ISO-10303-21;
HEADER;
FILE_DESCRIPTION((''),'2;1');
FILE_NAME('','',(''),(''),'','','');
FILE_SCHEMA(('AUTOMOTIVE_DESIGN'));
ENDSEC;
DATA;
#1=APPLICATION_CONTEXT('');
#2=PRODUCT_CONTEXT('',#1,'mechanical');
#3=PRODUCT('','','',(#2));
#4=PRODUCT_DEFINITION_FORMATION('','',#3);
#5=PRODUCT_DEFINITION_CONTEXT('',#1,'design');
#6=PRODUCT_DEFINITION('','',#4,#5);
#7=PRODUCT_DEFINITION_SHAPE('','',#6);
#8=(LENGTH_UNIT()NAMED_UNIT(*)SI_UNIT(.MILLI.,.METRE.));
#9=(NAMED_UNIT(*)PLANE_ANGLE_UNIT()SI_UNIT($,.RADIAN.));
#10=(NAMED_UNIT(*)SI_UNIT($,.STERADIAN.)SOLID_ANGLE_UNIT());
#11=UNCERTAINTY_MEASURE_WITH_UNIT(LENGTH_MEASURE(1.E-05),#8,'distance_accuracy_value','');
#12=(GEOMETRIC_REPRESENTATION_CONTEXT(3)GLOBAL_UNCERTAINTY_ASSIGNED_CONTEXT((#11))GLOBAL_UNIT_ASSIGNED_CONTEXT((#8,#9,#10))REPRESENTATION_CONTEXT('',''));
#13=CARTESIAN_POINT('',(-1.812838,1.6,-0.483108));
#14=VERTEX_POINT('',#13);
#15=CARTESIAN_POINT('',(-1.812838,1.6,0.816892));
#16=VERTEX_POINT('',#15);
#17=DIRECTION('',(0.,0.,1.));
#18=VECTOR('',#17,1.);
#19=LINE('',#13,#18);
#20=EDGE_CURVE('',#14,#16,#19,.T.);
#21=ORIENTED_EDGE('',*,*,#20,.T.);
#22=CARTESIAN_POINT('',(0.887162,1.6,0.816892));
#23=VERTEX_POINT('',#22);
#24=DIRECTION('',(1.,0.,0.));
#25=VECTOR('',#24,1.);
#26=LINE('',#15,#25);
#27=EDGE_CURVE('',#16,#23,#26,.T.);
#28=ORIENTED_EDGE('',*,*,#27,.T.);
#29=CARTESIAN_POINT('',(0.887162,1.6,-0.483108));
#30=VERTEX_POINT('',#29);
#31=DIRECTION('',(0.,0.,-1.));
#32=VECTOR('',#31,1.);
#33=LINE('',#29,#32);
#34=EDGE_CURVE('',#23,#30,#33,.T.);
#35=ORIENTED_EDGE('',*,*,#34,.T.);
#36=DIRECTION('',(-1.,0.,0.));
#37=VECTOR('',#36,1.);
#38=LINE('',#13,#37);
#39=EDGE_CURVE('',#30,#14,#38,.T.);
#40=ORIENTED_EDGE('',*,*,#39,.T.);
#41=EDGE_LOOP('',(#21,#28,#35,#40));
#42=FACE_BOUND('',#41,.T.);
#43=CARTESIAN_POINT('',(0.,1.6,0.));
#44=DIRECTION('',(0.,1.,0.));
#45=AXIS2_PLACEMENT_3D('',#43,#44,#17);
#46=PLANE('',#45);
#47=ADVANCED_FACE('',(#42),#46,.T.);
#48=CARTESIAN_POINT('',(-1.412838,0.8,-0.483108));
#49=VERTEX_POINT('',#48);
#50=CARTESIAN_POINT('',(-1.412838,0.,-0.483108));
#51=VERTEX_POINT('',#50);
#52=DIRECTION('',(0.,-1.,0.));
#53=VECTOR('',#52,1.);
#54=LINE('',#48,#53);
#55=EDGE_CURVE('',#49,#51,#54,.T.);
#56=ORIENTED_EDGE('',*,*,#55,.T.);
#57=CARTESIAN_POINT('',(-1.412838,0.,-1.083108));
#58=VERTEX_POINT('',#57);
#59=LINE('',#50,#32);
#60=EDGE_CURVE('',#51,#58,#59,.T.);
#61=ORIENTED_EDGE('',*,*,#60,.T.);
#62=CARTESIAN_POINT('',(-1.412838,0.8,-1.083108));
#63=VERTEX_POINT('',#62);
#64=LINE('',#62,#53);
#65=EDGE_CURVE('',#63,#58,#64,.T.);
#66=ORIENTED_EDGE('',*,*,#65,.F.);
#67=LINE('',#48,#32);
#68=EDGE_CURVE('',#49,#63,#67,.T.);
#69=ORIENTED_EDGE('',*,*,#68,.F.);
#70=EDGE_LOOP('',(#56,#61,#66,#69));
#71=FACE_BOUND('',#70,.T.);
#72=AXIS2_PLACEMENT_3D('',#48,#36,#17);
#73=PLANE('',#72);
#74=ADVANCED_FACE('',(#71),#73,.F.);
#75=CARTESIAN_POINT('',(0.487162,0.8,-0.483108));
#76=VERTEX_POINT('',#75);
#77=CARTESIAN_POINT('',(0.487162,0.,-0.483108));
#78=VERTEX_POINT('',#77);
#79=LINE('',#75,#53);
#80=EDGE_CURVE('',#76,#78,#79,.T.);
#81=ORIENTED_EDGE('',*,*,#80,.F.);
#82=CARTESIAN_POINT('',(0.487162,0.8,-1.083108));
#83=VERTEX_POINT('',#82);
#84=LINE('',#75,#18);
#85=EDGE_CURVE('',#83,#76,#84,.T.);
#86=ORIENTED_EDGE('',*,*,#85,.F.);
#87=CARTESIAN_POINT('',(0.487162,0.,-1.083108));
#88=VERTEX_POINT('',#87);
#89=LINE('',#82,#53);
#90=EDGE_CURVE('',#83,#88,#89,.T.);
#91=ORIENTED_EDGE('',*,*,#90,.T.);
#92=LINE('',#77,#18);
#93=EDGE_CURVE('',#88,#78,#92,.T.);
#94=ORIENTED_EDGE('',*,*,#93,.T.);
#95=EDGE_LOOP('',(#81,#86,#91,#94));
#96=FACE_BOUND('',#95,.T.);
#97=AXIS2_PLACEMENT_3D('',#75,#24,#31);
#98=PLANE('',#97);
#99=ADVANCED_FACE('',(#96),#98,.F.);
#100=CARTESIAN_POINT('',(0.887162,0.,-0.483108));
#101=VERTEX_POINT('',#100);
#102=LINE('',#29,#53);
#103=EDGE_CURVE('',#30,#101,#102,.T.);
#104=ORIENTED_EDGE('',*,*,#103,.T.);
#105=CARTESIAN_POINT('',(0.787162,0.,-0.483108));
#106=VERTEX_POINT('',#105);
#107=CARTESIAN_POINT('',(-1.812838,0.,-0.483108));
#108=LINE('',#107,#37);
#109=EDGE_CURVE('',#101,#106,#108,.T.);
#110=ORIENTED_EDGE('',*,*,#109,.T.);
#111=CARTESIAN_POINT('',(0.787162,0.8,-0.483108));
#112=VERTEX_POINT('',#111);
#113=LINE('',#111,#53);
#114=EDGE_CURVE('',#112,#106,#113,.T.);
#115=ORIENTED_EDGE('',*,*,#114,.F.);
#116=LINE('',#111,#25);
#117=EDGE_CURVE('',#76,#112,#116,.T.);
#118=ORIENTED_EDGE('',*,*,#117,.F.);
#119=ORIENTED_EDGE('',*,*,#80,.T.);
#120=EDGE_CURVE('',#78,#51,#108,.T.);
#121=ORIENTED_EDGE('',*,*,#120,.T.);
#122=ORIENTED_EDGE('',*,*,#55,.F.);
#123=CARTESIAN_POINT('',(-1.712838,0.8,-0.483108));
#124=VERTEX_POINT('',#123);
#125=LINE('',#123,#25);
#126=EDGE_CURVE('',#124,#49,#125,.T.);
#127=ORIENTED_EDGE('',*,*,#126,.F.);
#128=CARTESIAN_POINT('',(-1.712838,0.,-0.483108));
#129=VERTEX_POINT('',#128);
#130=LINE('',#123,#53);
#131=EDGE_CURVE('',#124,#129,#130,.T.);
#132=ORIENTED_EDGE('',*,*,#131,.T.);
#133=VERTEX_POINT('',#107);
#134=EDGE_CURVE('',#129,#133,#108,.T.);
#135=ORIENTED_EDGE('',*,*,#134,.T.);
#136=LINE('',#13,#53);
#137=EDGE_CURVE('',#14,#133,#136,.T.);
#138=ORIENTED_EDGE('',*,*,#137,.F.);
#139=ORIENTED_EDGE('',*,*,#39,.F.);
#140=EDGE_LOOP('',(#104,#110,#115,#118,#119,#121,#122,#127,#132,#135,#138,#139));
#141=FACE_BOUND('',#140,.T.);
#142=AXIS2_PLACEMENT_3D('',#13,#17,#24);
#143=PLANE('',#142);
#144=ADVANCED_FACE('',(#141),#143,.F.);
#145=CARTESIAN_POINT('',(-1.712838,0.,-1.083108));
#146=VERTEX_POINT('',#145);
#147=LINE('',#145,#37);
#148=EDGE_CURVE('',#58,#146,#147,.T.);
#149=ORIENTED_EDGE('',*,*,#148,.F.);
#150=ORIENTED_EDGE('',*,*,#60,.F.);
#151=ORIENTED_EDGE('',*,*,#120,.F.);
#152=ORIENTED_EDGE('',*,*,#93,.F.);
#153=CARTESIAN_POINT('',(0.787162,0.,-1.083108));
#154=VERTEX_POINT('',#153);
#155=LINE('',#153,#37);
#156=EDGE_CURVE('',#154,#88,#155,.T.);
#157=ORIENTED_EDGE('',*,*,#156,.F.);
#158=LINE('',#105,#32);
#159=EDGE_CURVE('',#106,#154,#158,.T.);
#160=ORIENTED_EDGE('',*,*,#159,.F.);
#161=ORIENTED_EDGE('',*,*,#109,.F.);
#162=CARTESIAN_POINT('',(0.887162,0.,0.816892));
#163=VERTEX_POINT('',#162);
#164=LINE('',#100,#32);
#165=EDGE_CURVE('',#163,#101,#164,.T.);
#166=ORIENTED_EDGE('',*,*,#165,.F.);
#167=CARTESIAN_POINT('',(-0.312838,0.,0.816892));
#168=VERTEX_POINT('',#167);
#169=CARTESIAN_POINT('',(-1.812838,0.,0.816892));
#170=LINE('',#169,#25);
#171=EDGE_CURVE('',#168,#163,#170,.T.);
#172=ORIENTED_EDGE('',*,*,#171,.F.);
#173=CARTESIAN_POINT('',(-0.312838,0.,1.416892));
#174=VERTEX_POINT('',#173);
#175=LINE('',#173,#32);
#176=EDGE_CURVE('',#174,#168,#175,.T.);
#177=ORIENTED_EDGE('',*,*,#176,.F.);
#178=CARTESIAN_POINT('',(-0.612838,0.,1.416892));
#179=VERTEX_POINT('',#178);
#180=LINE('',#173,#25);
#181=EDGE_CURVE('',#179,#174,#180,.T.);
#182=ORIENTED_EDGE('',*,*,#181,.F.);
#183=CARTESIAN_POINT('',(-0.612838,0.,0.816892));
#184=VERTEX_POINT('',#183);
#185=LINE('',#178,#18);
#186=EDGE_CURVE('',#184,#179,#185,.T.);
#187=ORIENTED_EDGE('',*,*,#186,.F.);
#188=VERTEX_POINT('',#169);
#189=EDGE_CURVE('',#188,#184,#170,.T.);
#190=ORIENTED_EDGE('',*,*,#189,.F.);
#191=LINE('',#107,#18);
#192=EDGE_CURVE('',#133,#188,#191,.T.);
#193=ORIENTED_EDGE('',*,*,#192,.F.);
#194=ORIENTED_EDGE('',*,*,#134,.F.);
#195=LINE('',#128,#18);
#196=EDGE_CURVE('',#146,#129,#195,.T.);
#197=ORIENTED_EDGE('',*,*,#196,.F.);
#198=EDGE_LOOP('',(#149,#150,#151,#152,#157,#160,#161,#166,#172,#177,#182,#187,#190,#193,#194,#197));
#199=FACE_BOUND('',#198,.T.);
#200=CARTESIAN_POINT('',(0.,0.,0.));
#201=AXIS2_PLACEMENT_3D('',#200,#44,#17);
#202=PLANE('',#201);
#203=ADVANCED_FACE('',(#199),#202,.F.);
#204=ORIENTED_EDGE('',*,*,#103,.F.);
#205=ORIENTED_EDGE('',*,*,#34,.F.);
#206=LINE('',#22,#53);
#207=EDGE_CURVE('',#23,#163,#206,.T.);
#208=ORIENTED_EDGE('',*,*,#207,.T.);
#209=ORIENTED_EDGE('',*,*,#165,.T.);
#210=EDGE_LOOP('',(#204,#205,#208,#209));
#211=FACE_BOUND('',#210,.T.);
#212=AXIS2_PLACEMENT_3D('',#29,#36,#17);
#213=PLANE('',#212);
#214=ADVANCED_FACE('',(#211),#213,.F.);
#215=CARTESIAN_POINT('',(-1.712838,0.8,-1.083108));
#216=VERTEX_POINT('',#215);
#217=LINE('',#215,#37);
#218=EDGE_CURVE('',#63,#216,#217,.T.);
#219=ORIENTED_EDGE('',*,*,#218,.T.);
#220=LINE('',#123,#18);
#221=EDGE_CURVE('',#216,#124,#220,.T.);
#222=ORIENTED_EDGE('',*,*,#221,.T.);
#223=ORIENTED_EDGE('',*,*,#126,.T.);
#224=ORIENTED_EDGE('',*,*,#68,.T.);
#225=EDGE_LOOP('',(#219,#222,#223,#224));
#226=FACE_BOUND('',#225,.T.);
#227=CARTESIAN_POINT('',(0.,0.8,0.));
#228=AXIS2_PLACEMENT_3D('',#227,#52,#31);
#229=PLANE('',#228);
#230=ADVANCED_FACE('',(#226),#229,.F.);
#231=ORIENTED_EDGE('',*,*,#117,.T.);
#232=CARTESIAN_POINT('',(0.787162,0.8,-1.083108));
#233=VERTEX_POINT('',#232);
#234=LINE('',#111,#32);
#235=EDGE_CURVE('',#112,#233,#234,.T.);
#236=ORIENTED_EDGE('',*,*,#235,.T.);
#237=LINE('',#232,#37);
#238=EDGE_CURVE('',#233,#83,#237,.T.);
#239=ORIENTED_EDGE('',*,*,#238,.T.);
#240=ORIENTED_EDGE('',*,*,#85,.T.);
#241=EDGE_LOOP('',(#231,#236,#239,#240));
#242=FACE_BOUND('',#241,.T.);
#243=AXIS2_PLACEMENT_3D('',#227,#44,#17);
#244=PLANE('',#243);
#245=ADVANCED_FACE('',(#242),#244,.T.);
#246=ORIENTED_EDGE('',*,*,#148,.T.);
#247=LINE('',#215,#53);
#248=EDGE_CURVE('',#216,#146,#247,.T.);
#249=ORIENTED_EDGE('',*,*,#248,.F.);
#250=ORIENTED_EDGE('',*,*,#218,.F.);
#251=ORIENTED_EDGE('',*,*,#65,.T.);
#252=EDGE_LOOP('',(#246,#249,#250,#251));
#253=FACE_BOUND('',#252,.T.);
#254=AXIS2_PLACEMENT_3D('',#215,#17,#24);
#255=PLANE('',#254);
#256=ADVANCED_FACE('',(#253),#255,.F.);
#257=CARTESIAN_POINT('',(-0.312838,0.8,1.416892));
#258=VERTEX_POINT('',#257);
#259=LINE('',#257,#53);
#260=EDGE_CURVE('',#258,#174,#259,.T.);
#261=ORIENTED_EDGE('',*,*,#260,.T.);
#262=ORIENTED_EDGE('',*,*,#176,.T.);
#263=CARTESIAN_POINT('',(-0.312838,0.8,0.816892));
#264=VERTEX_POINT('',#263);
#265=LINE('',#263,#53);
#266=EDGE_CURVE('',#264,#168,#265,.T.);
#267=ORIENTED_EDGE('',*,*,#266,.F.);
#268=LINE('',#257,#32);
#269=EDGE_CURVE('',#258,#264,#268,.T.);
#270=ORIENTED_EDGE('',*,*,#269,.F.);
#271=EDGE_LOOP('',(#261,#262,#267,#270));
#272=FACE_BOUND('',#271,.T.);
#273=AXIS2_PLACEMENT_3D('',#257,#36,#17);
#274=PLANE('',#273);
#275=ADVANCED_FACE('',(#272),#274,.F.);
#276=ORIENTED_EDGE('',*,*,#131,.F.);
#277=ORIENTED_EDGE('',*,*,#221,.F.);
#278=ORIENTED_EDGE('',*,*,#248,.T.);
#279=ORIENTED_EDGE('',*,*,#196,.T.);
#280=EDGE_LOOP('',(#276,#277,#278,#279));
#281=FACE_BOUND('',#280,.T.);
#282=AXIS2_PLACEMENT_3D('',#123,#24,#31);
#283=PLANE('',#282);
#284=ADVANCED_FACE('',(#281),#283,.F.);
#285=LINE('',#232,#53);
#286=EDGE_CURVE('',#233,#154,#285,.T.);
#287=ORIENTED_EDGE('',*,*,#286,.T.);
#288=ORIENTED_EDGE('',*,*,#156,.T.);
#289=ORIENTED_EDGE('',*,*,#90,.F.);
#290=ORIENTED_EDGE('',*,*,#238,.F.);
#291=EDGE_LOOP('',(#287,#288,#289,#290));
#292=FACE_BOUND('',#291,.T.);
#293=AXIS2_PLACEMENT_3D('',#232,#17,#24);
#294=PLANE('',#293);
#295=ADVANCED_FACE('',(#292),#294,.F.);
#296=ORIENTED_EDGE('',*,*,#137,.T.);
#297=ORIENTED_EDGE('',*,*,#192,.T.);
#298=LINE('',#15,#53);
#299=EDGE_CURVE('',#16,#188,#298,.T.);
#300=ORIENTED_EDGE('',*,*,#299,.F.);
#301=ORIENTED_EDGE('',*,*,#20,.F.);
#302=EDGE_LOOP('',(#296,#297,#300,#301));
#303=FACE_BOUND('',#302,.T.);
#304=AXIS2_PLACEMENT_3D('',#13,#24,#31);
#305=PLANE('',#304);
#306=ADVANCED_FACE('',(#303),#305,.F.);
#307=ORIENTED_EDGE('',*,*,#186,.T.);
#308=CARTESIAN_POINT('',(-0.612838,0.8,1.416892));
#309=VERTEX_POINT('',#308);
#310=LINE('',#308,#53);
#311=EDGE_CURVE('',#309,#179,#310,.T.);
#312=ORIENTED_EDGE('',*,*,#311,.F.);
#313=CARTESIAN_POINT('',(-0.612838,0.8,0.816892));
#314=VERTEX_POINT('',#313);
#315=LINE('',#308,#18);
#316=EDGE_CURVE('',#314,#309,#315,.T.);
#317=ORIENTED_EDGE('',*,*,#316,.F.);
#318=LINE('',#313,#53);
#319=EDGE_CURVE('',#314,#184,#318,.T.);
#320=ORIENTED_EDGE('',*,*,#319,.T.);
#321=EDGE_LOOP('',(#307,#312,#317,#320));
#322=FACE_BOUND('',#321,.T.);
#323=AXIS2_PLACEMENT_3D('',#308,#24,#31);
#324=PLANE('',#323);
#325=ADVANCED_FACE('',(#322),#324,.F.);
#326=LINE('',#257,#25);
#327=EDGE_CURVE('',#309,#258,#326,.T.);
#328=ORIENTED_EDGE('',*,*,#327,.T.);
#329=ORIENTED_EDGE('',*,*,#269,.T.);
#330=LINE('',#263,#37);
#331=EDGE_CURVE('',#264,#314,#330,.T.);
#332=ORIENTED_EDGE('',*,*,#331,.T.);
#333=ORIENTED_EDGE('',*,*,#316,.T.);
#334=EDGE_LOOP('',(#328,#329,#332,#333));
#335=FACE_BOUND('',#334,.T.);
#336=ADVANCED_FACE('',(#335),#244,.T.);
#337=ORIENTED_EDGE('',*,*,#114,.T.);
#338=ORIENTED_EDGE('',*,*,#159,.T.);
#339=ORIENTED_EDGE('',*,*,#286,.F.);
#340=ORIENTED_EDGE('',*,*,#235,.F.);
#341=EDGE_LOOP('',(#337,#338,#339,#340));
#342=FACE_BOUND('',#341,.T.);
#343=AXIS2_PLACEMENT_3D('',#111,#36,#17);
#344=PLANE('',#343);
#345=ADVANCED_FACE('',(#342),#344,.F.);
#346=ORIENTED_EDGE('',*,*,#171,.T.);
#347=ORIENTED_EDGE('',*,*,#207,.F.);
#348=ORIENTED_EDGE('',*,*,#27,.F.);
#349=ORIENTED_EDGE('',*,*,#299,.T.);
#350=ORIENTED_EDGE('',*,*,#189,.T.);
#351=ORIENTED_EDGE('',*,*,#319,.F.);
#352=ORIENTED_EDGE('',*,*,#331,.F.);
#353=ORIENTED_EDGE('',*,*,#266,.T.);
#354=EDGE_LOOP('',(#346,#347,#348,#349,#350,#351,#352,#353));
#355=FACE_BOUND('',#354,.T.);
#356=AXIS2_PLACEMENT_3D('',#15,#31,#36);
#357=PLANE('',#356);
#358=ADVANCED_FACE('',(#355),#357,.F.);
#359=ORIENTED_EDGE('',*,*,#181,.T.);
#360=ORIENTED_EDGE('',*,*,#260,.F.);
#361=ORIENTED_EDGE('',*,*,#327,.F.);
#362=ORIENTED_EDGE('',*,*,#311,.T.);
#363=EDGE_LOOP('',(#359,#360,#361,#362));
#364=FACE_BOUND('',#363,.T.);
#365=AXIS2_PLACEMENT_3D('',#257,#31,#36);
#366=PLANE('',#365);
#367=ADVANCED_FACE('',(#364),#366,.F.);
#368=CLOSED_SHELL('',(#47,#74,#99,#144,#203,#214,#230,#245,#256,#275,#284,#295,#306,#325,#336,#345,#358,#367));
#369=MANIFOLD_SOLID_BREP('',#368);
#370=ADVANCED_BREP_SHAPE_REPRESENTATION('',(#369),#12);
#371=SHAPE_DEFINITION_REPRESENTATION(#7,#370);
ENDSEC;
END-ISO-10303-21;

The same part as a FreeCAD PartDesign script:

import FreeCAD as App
import Part
import Sketcher


def add_polygon(sketch, points):
    """Adds a closed chain of lines whose ends are joined by coincident constraints."""
    first, n = sketch.GeometryCount, len(points)
    for a, b in zip(points, points[1:] + points[:1]):
        sketch.addGeometry(Part.LineSegment(App.Vector(*a, 0), App.Vector(*b, 0)), False)
    for i in range(n):
        sketch.addConstraint(Sketcher.Constraint("Coincident", first + i, 2, first + (i + 1) % n, 1))

doc = App.newDocument("Part")
body = doc.addObject("PartDesign::Body", "Body")

# Sketch on XZ plane
sketch1 = body.newObject("Sketcher::SketchObject", "Sketch")
sketch1.AttachmentSupport = (doc.getObject("XZ_Plane"), [""])
sketch1.MapMode = "FlatFace"
add_polygon(sketch1, [(-1.812838, -0.483108), (-1.812838, 0.816892), (0.887162, 0.816892), (0.887162, -0.483108)])  # lines 0-3
sketch1.addConstraint([
    Sketcher.Constraint("Vertical", 0),
    Sketcher.Constraint("Horizontal", 1),
    Sketcher.Constraint("Vertical", 2),
    Sketcher.Constraint("Horizontal", 3),
    Sketcher.Constraint("DistanceX", 1, 1, 1, 2, 2.7),
    Sketcher.Constraint("DistanceY", 0, 1, 0, 2, 1.3),
    Sketcher.Constraint("DistanceY", -1, 1, 0, 2, 0.816892),
    Sketcher.Constraint("DistanceX", 0, 2, -1, 1, 1.812838),
])
pad1 = body.newObject("PartDesign::Pad", "Pad")
pad1.Profile = sketch1
pad1.Length = 1.6
pad1.Reversed = True

# Sketch on XZ plane
sketch2 = body.newObject("Sketcher::SketchObject", "Sketch001")
sketch2.AttachmentSupport = (doc.getObject("XZ_Plane"), [""])
sketch2.MapMode = "FlatFace"
add_polygon(sketch2, [(-1.712838, -1.083108), (-1.712838, -0.483108), (-1.412838, -0.483108), (-1.412838, -1.083108)])  # lines 0-3
add_polygon(sketch2, [(0.487162, -1.083108), (0.487162, -0.483108), (0.787162, -0.483108), (0.787162, -1.083108)])  # lines 4-7
add_polygon(sketch2, [(-0.612838, 0.816892), (-0.612838, 1.416892), (-0.312838, 1.416892), (-0.312838, 0.816892)])  # lines 8-11
sketch2.addConstraint([
    Sketcher.Constraint("Vertical", 0),
    Sketcher.Constraint("Horizontal", 1),
    Sketcher.Constraint("Vertical", 2),
    Sketcher.Constraint("Horizontal", 3),
    Sketcher.Constraint("Vertical", 4),
    Sketcher.Constraint("Horizontal", 5),
    Sketcher.Constraint("Vertical", 6),
    Sketcher.Constraint("Horizontal", 7),
    Sketcher.Constraint("Vertical", 8),
    Sketcher.Constraint("Horizontal", 9),
    Sketcher.Constraint("Vertical", 10),
    Sketcher.Constraint("Horizontal", 11),
    Sketcher.Constraint("Horizontal", 1, 2, 4, 2),
    Sketcher.Constraint("Horizontal", 3, 2, 6, 2),
    Sketcher.Constraint("Equal", 3, 5),
    Sketcher.Constraint("Equal", 7, 9),
    Sketcher.Constraint("Equal", 6, 8),
    Sketcher.Constraint("DistanceX", 1, 1, 1, 2, 0.3),
    Sketcher.Constraint("DistanceY", 0, 1, 0, 2, 0.6),
    Sketcher.Constraint("DistanceX", 1, 2, 4, 2, 1.9),
    Sketcher.Constraint("DistanceX", 1, 2, 8, 2, 0.8),
    Sketcher.Constraint("DistanceY", 1, 2, 8, 2, 1.9),
    Sketcher.Constraint("DistanceY", 0, 2, -1, 1, 0.483108),
    Sketcher.Constraint("DistanceX", 0, 2, -1, 1, 1.712838),
])
pad2 = body.newObject("PartDesign::Pad", "Pad001")
pad2.Profile = sketch2
pad2.Length = 0.8
pad2.Reversed = True

doc.recompute()
